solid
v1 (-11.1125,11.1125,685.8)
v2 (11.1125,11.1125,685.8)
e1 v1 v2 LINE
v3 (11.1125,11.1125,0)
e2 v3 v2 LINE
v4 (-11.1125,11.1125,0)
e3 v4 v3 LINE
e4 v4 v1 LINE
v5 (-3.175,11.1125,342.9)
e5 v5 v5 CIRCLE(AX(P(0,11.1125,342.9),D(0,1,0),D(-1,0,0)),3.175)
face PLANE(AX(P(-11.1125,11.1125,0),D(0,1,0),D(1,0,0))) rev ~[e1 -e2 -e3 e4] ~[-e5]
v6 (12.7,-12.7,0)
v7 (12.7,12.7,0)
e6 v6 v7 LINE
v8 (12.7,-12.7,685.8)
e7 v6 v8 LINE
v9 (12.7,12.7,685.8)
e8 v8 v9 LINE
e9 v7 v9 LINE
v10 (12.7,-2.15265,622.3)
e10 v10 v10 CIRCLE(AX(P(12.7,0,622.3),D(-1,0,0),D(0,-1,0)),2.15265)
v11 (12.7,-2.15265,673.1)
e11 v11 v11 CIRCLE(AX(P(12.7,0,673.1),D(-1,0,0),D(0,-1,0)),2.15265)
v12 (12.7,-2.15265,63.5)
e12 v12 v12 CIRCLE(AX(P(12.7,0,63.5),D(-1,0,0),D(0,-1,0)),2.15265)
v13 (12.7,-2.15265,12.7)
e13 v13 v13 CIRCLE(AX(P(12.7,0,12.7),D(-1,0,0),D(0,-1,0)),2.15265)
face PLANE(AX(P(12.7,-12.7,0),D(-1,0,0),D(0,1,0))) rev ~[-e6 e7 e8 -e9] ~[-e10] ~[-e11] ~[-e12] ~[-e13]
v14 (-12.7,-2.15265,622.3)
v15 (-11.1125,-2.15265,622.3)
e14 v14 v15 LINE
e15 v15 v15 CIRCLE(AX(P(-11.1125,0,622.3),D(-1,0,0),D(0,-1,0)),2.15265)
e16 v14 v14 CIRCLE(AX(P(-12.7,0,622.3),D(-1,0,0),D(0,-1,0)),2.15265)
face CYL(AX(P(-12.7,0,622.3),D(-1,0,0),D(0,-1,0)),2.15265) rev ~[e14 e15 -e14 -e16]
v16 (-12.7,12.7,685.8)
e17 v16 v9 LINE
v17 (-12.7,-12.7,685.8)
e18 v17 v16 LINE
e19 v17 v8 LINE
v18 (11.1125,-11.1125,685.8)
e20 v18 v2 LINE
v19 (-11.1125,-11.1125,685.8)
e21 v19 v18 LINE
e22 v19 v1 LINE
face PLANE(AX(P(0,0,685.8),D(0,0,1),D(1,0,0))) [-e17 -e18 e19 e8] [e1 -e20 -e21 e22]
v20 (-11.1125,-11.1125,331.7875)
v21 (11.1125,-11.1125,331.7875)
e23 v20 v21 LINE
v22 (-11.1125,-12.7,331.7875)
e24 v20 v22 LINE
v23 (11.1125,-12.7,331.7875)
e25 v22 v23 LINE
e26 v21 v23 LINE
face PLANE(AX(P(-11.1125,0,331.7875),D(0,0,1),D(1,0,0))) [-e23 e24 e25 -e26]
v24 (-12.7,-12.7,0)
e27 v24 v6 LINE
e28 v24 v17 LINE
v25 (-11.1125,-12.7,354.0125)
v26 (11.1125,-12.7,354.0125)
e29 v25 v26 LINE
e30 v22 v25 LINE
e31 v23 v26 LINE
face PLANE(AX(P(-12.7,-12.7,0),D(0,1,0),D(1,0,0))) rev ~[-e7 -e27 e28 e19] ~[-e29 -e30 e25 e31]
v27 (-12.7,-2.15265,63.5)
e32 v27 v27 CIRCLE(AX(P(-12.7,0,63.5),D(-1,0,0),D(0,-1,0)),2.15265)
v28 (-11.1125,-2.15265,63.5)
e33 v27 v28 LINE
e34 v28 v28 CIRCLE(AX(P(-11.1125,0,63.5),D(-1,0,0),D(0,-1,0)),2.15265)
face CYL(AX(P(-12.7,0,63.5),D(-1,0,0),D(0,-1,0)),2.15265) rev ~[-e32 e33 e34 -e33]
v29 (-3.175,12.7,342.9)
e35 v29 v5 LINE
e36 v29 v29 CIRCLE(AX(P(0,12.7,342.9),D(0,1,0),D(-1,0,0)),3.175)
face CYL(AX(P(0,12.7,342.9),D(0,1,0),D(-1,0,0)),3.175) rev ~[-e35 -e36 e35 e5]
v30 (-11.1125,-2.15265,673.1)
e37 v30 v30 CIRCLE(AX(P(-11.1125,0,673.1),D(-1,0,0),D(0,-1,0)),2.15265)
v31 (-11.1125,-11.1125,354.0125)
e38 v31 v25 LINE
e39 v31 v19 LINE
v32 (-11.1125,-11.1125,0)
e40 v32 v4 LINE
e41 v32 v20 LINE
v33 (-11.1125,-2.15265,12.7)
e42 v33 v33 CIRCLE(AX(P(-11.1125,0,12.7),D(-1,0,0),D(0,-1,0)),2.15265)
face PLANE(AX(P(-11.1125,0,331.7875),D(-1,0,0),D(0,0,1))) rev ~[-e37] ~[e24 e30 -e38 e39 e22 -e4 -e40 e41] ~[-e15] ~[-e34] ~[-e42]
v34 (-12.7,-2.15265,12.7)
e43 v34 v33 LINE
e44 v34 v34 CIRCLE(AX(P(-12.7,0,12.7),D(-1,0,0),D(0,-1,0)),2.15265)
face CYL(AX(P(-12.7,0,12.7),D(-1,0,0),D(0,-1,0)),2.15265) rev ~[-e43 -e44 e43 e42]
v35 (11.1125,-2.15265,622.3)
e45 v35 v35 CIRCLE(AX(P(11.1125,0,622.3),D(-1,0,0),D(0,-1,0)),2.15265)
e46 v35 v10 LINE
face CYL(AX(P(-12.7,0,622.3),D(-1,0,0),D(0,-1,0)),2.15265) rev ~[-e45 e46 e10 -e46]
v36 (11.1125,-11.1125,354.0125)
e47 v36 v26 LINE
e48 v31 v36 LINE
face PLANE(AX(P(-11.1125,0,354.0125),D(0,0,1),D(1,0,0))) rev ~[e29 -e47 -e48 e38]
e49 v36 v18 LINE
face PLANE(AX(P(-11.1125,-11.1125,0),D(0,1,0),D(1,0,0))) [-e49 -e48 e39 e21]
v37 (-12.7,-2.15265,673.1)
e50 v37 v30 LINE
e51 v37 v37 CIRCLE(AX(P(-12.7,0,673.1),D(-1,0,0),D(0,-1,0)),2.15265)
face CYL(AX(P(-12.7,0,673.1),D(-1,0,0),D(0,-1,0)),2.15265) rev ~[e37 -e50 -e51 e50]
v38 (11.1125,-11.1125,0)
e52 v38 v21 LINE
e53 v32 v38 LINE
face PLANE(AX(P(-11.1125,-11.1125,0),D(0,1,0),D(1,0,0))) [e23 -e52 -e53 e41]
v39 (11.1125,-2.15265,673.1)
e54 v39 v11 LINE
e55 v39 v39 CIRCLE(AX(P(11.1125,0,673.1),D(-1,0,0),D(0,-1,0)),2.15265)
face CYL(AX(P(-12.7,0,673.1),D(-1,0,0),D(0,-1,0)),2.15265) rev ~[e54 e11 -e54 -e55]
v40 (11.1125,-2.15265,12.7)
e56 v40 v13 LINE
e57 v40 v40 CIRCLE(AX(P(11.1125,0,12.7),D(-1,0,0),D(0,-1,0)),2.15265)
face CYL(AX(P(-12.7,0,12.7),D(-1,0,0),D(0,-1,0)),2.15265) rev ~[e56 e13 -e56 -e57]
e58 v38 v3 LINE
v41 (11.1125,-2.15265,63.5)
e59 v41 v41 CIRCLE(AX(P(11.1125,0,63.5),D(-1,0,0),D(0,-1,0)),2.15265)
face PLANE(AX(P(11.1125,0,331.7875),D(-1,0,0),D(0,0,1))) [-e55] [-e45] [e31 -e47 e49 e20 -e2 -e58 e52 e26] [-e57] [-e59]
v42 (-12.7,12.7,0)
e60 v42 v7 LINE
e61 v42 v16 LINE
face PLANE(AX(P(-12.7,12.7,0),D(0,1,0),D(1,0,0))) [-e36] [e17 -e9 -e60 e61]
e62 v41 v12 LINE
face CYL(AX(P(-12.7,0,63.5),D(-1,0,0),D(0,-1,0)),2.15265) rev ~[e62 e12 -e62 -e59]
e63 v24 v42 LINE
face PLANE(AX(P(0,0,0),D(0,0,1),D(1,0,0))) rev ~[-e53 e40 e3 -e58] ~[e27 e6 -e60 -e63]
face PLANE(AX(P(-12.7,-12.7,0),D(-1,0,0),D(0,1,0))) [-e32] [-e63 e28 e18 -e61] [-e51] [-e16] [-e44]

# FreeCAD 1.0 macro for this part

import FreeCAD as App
import Part
import Sketcher
from FreeCAD import Vector
Q = App.Units.Quantity

doc = App.newDocument("Part")
body = doc.addObject("PartDesign::Body", "Body")

sketch1 = body.newObject("Sketcher::SketchObject", "Sketch")
sketch1.AttachmentSupport = (doc.getObject("XY_Plane"), [""])
sketch1.MapMode = "FlatFace"
sketch1.addGeometry(Part.LineSegment(Vector(-13, 13, 0), Vector(-13, -13, 0)), False)
sketch1.addGeometry(Part.LineSegment(Vector(-13, -13, 0), Vector(13, -13, 0)), False)
sketch1.addGeometry(Part.LineSegment(Vector(13, -13, 0), Vector(13, 13, 0)), False)
sketch1.addGeometry(Part.LineSegment(Vector(13, 13, 0), Vector(-13, 13, 0)), False)
sketch1.addGeometry(Part.LineSegment(Vector(11, -11, 0), Vector(-11, -11, 0)), False)
sketch1.addGeometry(Part.LineSegment(Vector(-11, -11, 0), Vector(-11, 11, 0)), False)
sketch1.addGeometry(Part.LineSegment(Vector(-11, 11, 0), Vector(11, 11, 0)), False)
sketch1.addGeometry(Part.LineSegment(Vector(11, 11, 0), Vector(11, -11, 0)), False)
sketch1.addConstraint(Sketcher.Constraint("Coincident", 0, 2, 1, 1))
sketch1.addConstraint(Sketcher.Constraint("Coincident", 1, 2, 2, 1))
sketch1.addConstraint(Sketcher.Constraint("Coincident", 2, 2, 3, 1))
sketch1.addConstraint(Sketcher.Constraint("Coincident", 3, 2, 0, 1))
sketch1.addConstraint(Sketcher.Constraint("Coincident", 4, 2, 5, 1))
sketch1.addConstraint(Sketcher.Constraint("Coincident", 5, 2, 6, 1))
sketch1.addConstraint(Sketcher.Constraint("Coincident", 6, 2, 7, 1))
sketch1.addConstraint(Sketcher.Constraint("Coincident", 7, 2, 4, 1))
sketch1.addConstraint(Sketcher.Constraint("Vertical", 0))
sketch1.addConstraint(Sketcher.Constraint("Horizontal", 1))
sketch1.addConstraint(Sketcher.Constraint("Vertical", 2))
sketch1.addConstraint(Sketcher.Constraint("Horizontal", 3))
sketch1.addConstraint(Sketcher.Constraint("Horizontal", 4))
sketch1.addConstraint(Sketcher.Constraint("Vertical", 5))
sketch1.addConstraint(Sketcher.Constraint("Horizontal", 6))
sketch1.addConstraint(Sketcher.Constraint("Vertical", 7))
sketch1.addConstraint(Sketcher.Constraint("Symmetric", 0, 2, 2, 2, -1, 1))
sketch1.addConstraint(Sketcher.Constraint("Symmetric", 4, 2, 6, 2, -1, 1))
sketch1.addConstraint(Sketcher.Constraint("Equal", 3, 0))
sketch1.addConstraint(Sketcher.Constraint("Equal", 6, 5))
sketch1.addConstraint(Sketcher.Constraint("DistanceX", 1, 1, 1, 2, Q("1 in")))
sketch1.addConstraint(Sketcher.Constraint("DistanceX", 4, 2, 4, 1, Q("0.875 in")))
pad1 = body.newObject("PartDesign::Pad", "Pad")
pad1.Profile = sketch1
pad1.Length = Q("27 in")

sketch2 = body.newObject("Sketcher::SketchObject", "Sketch001")
sketch2.AttachmentSupport = (doc.getObject("XZ_Plane"), [""])
sketch2.MapMode = "FlatFace"
sketch2.addGeometry(Part.LineSegment(Vector(-11, 354, 0), Vector(-11, 332, 0)), False)
sketch2.addGeometry(Part.LineSegment(Vector(-11, 332, 0), Vector(11, 332, 0)), False)
sketch2.addGeometry(Part.LineSegment(Vector(11, 332, 0), Vector(11, 354, 0)), False)
sketch2.addGeometry(Part.LineSegment(Vector(11, 354, 0), Vector(-11, 354, 0)), False)
sketch2.addConstraint(Sketcher.Constraint("Coincident", 0, 2, 1, 1))
sketch2.addConstraint(Sketcher.Constraint("Coincident", 1, 2, 2, 1))
sketch2.addConstraint(Sketcher.Constraint("Coincident", 2, 2, 3, 1))
sketch2.addConstraint(Sketcher.Constraint("Coincident", 3, 2, 0, 1))
sketch2.addConstraint(Sketcher.Constraint("Vertical", 0))
sketch2.addConstraint(Sketcher.Constraint("Horizontal", 1))
sketch2.addConstraint(Sketcher.Constraint("Vertical", 2))
sketch2.addConstraint(Sketcher.Constraint("Horizontal", 3))
sketch2.addConstraint(Sketcher.Constraint("Equal", 3, 0))
sketch2.addConstraint(Sketcher.Constraint("DistanceX", 1, 1, 1, 2, Q("0.875 in")))
sketch2.addConstraint(Sketcher.Constraint("DistanceX", 0, 2, -1, 1, Q("0.4375 in")))
sketch2.addConstraint(Sketcher.Constraint("DistanceY", -1, 1, 0, 2, Q("13.0625 in")))
pocket1 = body.newObject("PartDesign::Pocket", "Pocket")
pocket1.Profile = sketch2
pocket1.Type = "ThroughAll"
pocket1.Reversed = True

sketch3 = body.newObject("Sketcher::SketchObject", "Sketch002")
sketch3.AttachmentSupport = (doc.getObject("XZ_Plane"), [""])
sketch3.MapMode = "FlatFace"
sketch3.AttachmentOffset = App.Placement(Vector(0, 0, -0.5 * 25.4), App.Rotation())
sketch3.addGeometry(Part.Circle(Vector(0, 342.9, 0), Vector(0, 0, 1), 3.2), False)
sketch3.addConstraint(Sketcher.Constraint("PointOnObject", 0, 3, -2))
sketch3.addConstraint(Sketcher.Constraint("Diameter", 0, Q("0.25 in")))
sketch3.addConstraint(Sketcher.Constraint("DistanceY", -1, 1, 0, 3, Q("13.5 in")))
pocket2 = body.newObject("PartDesign::Pocket", "Pocket001")
pocket2.Profile = sketch3
pocket2.Type = "ThroughAll"
pocket2.Reversed = True

sketch4 = body.newObject("Sketcher::SketchObject", "Sketch003")
sketch4.AttachmentSupport = (doc.getObject("YZ_Plane"), [""])
sketch4.MapMode = "FlatFace"
sketch4.AttachmentOffset = App.Placement(Vector(0, 0, -0.5 * 25.4), App.Rotation())
sketch4.addGeometry(Part.Circle(Vector(0, 12.7, 0), Vector(0, 0, 1), 2.2), False)
sketch4.addGeometry(Part.Circle(Vector(0, 63.5, 0), Vector(0, 0, 1), 2.2), False)
sketch4.addGeometry(Part.Circle(Vector(0, 673.1, 0), Vector(0, 0, 1), 2.2), False)
sketch4.addGeometry(Part.Circle(Vector(0, 622.3, 0), Vector(0, 0, 1), 2.2), False)
sketch4.addConstraint(Sketcher.Constraint("Equal", 0, 1))
sketch4.addConstraint(Sketcher.Constraint("Equal", 1, 2))
sketch4.addConstraint(Sketcher.Constraint("Equal", 2, 3))
sketch4.addConstraint(Sketcher.Constraint("PointOnObject", 0, 3, -2))
sketch4.addConstraint(Sketcher.Constraint("PointOnObject", 1, 3, -2))
sketch4.addConstraint(Sketcher.Constraint("PointOnObject", 2, 3, -2))
sketch4.addConstraint(Sketcher.Constraint("PointOnObject", 3, 3, -2))
sketch4.addConstraint(Sketcher.Constraint("DistanceY", 0, 3, 1, 3, Q("2 in")))
sketch4.addConstraint(Sketcher.Constraint("DistanceY", 1, 3, 2, 3, Q("24 in")))
sketch4.addConstraint(Sketcher.Constraint("DistanceY", 3, 3, 2, 3, Q("2 in")))
sketch4.addConstraint(Sketcher.Constraint("Diameter", 0, Q("0.1695 in")))
sketch4.addConstraint(Sketcher.Constraint("DistanceY", -1, 1, 0, 3, Q("0.5 in")))
pocket3 = body.newObject("PartDesign::Pocket", "Pocket002")
pocket3.Profile = sketch4
pocket3.Type = "ThroughAll"
pocket3.Reversed = True

doc.recompute()
